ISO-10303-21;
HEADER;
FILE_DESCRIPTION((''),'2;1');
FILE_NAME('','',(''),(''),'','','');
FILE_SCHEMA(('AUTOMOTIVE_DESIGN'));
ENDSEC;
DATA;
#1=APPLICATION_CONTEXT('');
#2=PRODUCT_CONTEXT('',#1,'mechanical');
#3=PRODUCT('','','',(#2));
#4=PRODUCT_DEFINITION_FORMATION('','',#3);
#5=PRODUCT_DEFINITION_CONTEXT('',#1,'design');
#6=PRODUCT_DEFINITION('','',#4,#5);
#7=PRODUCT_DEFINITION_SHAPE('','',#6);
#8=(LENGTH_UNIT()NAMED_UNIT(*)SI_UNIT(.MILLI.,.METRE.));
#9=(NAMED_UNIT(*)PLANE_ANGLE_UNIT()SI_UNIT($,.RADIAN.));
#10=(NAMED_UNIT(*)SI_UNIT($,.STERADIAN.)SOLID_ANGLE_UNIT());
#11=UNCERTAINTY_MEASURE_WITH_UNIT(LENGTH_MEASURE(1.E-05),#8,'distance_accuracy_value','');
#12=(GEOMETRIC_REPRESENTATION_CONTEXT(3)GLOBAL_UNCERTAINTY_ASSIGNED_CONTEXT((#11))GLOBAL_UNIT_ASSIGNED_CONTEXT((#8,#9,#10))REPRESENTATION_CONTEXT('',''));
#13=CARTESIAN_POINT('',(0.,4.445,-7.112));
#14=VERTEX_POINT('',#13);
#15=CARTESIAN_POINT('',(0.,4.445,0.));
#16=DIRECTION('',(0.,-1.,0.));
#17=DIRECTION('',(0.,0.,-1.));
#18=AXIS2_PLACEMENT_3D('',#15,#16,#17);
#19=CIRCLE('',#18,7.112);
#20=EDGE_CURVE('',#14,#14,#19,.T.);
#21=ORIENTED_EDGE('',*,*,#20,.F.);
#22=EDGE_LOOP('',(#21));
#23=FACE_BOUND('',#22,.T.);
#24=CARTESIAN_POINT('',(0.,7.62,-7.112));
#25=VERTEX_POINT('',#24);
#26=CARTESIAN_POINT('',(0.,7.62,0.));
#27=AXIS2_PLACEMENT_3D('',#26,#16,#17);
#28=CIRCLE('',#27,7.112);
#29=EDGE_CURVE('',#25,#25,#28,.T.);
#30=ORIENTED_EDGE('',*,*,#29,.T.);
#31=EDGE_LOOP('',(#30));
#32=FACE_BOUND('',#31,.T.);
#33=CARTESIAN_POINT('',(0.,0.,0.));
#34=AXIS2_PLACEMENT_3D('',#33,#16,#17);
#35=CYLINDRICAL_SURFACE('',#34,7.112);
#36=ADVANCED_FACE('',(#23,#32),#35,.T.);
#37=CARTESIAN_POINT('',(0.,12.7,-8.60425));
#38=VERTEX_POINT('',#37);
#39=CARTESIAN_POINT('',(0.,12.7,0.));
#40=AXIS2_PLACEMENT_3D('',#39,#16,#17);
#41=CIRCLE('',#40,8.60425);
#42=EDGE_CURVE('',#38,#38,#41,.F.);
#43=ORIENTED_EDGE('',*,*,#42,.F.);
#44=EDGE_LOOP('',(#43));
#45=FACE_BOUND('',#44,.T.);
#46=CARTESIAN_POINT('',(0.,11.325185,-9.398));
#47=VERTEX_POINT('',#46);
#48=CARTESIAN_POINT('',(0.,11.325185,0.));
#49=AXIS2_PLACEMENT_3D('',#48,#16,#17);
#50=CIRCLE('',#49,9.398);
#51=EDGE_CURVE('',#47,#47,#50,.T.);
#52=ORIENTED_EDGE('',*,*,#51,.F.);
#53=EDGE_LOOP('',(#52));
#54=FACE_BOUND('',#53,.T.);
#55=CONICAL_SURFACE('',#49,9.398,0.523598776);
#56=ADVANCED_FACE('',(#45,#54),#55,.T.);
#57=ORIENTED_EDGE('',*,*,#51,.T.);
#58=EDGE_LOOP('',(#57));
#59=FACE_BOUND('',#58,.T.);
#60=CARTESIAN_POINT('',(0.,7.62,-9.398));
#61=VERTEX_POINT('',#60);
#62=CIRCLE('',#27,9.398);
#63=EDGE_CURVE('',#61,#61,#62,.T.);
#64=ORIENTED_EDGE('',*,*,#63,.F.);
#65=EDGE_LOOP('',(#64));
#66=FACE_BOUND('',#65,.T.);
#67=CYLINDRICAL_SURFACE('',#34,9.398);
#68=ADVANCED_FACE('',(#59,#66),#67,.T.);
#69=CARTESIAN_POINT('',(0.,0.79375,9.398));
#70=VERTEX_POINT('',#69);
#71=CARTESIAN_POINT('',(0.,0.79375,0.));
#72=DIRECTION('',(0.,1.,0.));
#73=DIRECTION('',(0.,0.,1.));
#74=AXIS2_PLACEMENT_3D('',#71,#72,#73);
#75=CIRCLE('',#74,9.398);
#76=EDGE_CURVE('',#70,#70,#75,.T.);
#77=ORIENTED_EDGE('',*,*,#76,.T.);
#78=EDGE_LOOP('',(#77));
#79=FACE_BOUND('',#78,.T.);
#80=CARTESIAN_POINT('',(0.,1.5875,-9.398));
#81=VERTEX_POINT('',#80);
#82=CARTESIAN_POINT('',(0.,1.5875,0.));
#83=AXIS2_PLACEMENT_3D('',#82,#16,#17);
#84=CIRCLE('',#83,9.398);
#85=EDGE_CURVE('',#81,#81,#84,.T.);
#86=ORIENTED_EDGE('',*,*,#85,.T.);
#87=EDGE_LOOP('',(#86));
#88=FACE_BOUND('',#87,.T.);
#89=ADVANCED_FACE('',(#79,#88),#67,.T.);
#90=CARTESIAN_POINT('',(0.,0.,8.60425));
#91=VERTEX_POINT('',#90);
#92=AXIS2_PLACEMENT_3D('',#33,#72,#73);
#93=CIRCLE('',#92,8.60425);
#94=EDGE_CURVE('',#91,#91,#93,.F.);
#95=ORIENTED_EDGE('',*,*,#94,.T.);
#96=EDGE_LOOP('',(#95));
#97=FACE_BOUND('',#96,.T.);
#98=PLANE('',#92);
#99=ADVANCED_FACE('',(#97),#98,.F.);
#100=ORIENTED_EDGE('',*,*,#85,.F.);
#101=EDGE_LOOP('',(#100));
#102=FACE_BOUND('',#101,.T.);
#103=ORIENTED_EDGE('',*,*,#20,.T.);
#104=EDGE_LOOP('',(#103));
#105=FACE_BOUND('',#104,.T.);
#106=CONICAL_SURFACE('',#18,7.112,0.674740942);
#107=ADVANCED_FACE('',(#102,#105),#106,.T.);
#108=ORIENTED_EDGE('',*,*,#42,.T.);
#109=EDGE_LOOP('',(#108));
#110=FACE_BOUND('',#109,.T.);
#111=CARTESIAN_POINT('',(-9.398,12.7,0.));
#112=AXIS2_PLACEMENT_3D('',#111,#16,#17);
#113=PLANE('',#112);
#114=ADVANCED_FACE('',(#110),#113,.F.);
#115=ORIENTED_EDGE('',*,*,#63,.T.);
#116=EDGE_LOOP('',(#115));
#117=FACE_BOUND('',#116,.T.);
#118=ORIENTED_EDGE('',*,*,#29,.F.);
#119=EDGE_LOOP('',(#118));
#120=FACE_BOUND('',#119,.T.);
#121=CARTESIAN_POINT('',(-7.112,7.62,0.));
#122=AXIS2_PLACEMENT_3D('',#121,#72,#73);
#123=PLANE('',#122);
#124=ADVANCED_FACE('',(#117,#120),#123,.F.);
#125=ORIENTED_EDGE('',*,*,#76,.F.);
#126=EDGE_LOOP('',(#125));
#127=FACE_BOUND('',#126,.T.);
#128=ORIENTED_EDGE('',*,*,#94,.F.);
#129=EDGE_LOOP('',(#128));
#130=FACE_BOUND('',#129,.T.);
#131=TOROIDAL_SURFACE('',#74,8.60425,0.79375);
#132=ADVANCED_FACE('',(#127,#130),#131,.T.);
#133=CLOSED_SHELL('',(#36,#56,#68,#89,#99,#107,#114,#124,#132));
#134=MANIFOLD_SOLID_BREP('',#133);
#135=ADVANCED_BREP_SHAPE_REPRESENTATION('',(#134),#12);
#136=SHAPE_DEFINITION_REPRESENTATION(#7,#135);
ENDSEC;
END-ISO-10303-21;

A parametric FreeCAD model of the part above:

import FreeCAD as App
import Part
import Sketcher
from FreeCAD import Vector
Q = App.Units.Quantity


def edges_at(feature, points):
    """Names of the edges that pass closest to the given points."""
    edges = feature.Shape.Edges
    near = lambda p: min(range(len(edges)), key=lambda i: edges[i].distToShape(Part.Vertex(*p))[0])
    return sorted({f"Edge{near(p) + 1}" for p in points})


def add_polygon(sketch, points):
    """Adds a closed chain of lines whose ends are joined by coincident constraints."""
    first, n = sketch.GeometryCount, len(points)
    for a, b in zip(points, points[1:] + points[:1]):
        sketch.addGeometry(Part.LineSegment(App.Vector(*a, 0), App.Vector(*b, 0)), False)
    for i in range(n):
        sketch.addConstraint(Sketcher.Constraint("Coincident", first + i, 2, first + (i + 1) % n, 1))

doc = App.newDocument("Part")
body = doc.addObject("PartDesign::Body", "Body")

# Sketch on XY plane
sketch1 = body.newObject("Sketcher::SketchObject", "Sketch")
sketch1.AttachmentSupport = (doc.getObject("XY_Plane"), [""])
sketch1.MapMode = "FlatFace"
add_polygon(sketch1, [(-9.4, 0), (0, 0), (0, 12.7), (-9.4, 12.7), (-9.4, 7.6), (-7.1, 7.6), (-7.1, 4.4), (-9.4, 1.6)])  # lines 0-7
sketch1.addConstraint([
    Sketcher.Constraint("Horizontal", 0),
    Sketcher.Constraint("Vertical", 1),
    Sketcher.Constraint("Horizontal", 2),
    Sketcher.Constraint("Vertical", 3),
    Sketcher.Constraint("Horizontal", 4),
    Sketcher.Constraint("Vertical", 5),
    Sketcher.Constraint("Vertical", 7),
    Sketcher.Constraint("Coincident", 0, 2, -1, 1),
    Sketcher.Constraint("Vertical", 3, 2, 6, 2),
    Sketcher.Constraint("DistanceY", 1, 1, 1, 2, Q("0.5 in")),
    Sketcher.Constraint("DistanceY", 3, 2, 3, 1, Q("0.2 in")),
    Sketcher.Constraint("DistanceX", 0, 1, 0, 2, Q("0.37 in")),
    Sketcher.Constraint("DistanceX", 4, 1, 4, 2, Q("0.09 in")),
    Sketcher.Constraint("DistanceY", 5, 2, 5, 1, Q("0.125 in")),
    Sketcher.Constraint("DistanceY", 7, 2, 7, 1, Q("0.0625 in")),
])
revolution = body.newObject("PartDesign::Revolution", "Revolution")
revolution.Profile = sketch1
revolution.ReferenceAxis = (sketch1, ["V_Axis"])
revolution.Angle = 360
doc.recompute()

fillet = body.newObject("PartDesign::Fillet", "Fillet")
fillet.Base = (revolution, edges_at(revolution, [(9.398, 0, 0)]))
fillet.Radius = Q("0.03125 in")
doc.recompute()

chamfer = body.newObject("PartDesign::Chamfer", "Chamfer")
chamfer.Base = (fillet, edges_at(fillet, [(9.398, 12.7, 0)]))
chamfer.ChamferType = "Two distances"
chamfer.Size = Q("0.03125 in")
chamfer.Size2 = 1.374815
chamfer.FlipDirection = True

doc.recompute()
